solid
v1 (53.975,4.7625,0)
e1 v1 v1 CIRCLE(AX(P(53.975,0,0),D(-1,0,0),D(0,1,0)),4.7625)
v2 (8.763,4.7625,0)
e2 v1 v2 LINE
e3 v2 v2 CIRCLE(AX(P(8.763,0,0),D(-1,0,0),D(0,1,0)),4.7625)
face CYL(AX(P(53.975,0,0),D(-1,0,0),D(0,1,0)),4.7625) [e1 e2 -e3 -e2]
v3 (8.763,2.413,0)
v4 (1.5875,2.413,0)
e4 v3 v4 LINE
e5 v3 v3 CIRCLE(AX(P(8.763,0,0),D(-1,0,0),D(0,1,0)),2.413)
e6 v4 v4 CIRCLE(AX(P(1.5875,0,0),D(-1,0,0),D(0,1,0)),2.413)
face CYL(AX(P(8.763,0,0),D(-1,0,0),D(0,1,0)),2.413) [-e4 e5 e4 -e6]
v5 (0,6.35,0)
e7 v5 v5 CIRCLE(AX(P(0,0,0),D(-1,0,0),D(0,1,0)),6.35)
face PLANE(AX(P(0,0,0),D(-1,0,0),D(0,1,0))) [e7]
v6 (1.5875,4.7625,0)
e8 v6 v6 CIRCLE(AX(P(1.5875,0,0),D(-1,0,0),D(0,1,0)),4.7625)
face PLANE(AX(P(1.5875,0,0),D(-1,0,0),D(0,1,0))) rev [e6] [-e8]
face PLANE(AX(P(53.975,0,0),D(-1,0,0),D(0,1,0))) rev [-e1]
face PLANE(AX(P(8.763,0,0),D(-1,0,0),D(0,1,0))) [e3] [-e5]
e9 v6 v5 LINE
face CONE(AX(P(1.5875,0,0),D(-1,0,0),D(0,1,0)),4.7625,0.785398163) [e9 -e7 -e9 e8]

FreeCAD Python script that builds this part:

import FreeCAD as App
import Part
import Sketcher

V = App.Vector
Q = App.Units.Quantity

doc = App.newDocument("Part")
params = doc.addObject("Spreadsheet::Sheet", "Params")
for row, (alias, value) in enumerate([
    ("sketch1_width", "1.78 in"),
    ("sketch1_height", "0.25 in"),
    ("sketch1_width2", "2.125 in"),
    ("sketch1_height2", "0.1875 in"),
    ("revolution_angle", "360 deg"),
], start=1):
    params.set(f"A{row}", alias)
    params.set(f"B{row}", "=" + value)
    params.setAlias(f"B{row}", alias)

body = doc.addObject("PartDesign::Body", "Body")

# Sketch on XY plane
sketch1 = doc.addObject("Sketcher::SketchObject", "Sketch")
body.addObject(sketch1)
sketch1.AttachmentSupport = (doc.XY_Plane, [""])
sketch1.MapMode = "FlatFace"
sketch1.addGeometry([
    Part.LineSegment(V(0, 6.3, 0), V(0, 0, 0)),  # 0
    Part.LineSegment(V(0, 0, 0), V(54, 0, 0)),  # 1
    Part.LineSegment(V(54, 0, 0), V(54, 4.8, 0)),  # 2
    Part.LineSegment(V(54, 4.8, 0), V(8.8, 4.8, 0)),  # 3
    Part.LineSegment(V(8.8, 4.8, 0), V(8.8, 2.4, 0)),  # 4
    Part.LineSegment(V(8.8, 2.4, 0), V(1.6, 2.4, 0)),  # 5
    Part.LineSegment(V(1.6, 2.4, 0), V(1.6, 4.8, 0)),  # 6
    Part.LineSegment(V(1.6, 4.8, 0), V(0, 6.3, 0)),  # 7
], False)
sketch1.addConstraint([
    Sketcher.Constraint("Coincident", 0, 2, 1, 1),
    Sketcher.Constraint("Coincident", 1, 2, 2, 1),
    Sketcher.Constraint("Coincident", 2, 2, 3, 1),
    Sketcher.Constraint("Coincident", 3, 2, 4, 1),
    Sketcher.Constraint("Coincident", 4, 2, 5, 1),
    Sketcher.Constraint("Coincident", 5, 2, 6, 1),
    Sketcher.Constraint("Coincident", 6, 2, 7, 1),
    Sketcher.Constraint("Coincident", 7, 2, 0, 1),
    Sketcher.Constraint("Vertical", 0),
    Sketcher.Constraint("Horizontal", 1),
    Sketcher.Constraint("Vertical", 2),
    Sketcher.Constraint("Horizontal", 3),
    Sketcher.Constraint("Vertical", 4),
    Sketcher.Constraint("Horizontal", 5),
    Sketcher.Constraint("Vertical", 6),
    Sketcher.Constraint("Coincident", 0, 2, -1, 1),
    Sketcher.Constraint("Horizontal", 3, 2, 6, 2),
    Sketcher.Constraint("Angle", 7, Q("135 deg")),
    Sketcher.Constraint("DistanceX", 3, 2, 3, 1, Q("1.78 in")),
    Sketcher.Constraint("DistanceY", 0, 2, 0, 1, Q("0.25 in")),
    Sketcher.Constraint("DistanceX", 1, 1, 1, 2, Q("2.125 in")),
    Sketcher.Constraint("DistanceY", 2, 1, 2, 2, Q("0.1875 in")),
    Sketcher.Constraint("DistanceY", 4, 2, 4, 1, Q("0.0925 in")),
])
sketch1.setExpression("Constraints[18]", "Params.sketch1_width")
sketch1.setExpression("Constraints[19]", "Params.sketch1_height")
sketch1.setExpression("Constraints[20]", "Params.sketch1_width2")
sketch1.setExpression("Constraints[21]", "Params.sketch1_height2")
revolution = doc.addObject("PartDesign::Revolution", "Revolution")
body.addObject(revolution)
revolution.Profile = sketch1
revolution.ReferenceAxis = (sketch1, ["H_Axis"])
revolution.setExpression("Angle", "Params.revolution_angle")

doc.recompute()
